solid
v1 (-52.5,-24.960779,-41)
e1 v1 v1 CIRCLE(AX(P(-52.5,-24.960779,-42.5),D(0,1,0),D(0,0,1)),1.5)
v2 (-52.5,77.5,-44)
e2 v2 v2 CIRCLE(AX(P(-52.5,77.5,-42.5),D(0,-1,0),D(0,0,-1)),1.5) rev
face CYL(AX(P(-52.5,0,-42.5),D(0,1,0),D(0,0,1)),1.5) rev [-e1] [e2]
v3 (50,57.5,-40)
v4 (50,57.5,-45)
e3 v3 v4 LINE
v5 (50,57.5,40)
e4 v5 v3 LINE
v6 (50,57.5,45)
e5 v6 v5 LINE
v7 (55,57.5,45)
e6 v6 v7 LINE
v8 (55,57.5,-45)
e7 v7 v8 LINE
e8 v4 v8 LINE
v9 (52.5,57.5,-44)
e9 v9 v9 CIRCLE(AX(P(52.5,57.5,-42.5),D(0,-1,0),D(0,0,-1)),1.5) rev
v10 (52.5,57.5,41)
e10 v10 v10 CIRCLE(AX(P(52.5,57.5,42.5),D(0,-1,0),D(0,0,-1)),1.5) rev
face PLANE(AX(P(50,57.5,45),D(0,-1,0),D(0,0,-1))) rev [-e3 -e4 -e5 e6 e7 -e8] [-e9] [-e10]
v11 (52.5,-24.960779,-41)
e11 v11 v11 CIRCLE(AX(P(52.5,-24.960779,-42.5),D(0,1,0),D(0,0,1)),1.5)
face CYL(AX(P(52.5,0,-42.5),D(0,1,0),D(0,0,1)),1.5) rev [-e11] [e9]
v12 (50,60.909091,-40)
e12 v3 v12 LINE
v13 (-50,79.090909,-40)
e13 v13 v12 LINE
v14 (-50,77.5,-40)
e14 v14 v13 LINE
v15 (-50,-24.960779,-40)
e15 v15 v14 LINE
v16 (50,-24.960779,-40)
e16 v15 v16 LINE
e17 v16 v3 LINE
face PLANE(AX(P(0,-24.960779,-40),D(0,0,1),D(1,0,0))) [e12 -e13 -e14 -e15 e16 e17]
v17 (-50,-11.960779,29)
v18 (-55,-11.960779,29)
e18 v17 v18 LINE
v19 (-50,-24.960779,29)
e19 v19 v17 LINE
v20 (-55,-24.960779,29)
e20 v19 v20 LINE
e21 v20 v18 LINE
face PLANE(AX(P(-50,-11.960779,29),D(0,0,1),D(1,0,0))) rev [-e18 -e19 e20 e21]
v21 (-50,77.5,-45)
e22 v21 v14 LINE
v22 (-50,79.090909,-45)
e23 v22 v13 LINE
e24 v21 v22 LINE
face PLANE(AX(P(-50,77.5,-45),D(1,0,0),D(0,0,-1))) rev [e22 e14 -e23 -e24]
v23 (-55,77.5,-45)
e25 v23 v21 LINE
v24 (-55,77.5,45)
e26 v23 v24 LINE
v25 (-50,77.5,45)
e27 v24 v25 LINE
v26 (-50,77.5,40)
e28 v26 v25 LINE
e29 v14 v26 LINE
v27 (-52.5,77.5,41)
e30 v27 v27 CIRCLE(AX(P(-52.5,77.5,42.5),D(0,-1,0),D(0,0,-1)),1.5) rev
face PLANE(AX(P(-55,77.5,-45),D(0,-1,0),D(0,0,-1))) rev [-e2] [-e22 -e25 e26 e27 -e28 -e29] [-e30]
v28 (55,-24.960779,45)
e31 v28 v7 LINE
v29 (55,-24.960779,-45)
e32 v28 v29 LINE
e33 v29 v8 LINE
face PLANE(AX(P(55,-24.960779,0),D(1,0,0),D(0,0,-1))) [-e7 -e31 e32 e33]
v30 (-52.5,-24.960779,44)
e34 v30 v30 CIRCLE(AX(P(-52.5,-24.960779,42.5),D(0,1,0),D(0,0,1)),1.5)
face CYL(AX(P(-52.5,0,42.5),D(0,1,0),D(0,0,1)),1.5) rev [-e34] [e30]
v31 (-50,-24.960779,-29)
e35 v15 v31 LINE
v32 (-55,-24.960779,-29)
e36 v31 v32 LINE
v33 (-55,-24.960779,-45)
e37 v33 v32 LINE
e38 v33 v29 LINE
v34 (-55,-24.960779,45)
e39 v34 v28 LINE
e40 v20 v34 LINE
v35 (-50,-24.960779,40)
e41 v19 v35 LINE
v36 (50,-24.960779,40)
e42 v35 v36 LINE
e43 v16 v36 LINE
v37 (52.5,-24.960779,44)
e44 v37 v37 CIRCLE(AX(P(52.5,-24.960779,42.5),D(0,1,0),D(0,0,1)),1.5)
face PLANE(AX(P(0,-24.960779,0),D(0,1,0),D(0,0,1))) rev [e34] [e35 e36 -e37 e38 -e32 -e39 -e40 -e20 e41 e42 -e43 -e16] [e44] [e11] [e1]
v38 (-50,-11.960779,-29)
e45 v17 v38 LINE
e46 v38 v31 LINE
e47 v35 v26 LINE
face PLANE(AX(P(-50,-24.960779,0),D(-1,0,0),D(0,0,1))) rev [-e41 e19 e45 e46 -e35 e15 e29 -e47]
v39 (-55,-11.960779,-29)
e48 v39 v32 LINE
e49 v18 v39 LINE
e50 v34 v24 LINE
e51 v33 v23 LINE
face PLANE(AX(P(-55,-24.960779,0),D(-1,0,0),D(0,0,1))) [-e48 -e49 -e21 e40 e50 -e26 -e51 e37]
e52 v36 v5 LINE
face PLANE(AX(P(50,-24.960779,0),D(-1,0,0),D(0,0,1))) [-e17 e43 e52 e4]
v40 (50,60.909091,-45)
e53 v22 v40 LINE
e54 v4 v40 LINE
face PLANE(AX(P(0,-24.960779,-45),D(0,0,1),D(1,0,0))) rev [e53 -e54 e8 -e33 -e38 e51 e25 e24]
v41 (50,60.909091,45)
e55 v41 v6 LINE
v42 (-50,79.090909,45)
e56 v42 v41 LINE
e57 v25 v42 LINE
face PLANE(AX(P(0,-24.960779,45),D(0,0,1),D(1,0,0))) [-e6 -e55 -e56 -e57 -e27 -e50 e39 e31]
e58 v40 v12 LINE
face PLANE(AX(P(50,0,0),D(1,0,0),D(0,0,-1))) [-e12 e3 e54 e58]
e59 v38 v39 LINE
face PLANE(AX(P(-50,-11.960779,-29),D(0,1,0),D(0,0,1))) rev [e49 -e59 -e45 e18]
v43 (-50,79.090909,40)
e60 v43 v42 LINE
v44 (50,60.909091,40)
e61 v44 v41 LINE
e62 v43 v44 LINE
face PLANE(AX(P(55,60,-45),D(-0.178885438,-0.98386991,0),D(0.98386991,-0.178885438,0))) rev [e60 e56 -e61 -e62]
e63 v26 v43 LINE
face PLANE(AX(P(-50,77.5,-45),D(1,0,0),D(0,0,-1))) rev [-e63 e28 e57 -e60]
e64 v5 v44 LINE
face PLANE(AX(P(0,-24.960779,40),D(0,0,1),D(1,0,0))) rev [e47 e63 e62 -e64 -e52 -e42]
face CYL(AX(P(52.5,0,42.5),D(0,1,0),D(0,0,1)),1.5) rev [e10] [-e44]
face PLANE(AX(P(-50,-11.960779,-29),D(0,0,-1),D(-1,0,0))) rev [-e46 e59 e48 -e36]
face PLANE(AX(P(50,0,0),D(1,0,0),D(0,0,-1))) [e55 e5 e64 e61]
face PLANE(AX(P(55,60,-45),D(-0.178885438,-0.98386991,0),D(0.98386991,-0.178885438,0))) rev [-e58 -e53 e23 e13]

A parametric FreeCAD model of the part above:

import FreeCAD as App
import Part
import Sketcher

V = App.Vector
Q = App.Units.Quantity


def add_polygon(sketch, points):
    """Adds a closed chain of lines whose ends are joined by coincident constraints."""
    first, n = sketch.GeometryCount, len(points)
    for a, b in zip(points, points[1:] + points[:1]):
        sketch.addGeometry(Part.LineSegment(App.Vector(*a, 0), App.Vector(*b, 0)), False)
    for i in range(n):
        sketch.addConstraint(Sketcher.Constraint("Coincident", first + i, 2, first + (i + 1) % n, 1))

doc = App.newDocument("Part")
params = doc.addObject("Spreadsheet::Sheet", "Params")
for row, (alias, value) in enumerate([
    ("sketch1_width", "110 mm"),
    ("sketch1_width2", "100 mm"),
    ("sketch1_height", "90 mm"),
    ("sketch1_height2", "80 mm"),
    ("pad1_length", "80 mm"),
    ("pad1_length2", "24.960779 mm"),
    ("sketch2_diameter", "3 mm"),
    ("pocket1_length", "80 mm"),
    ("sketch3_diameter", "3 mm"),
    ("pocket2_length", "80 mm"),
    ("sketch4_diameter", "3 mm"),
    ("pocket3_length", "80 mm"),
    ("sketch5_diameter", "3 mm"),
    ("pocket4_length", "80 mm"),
    ("sketch6_width", "110 mm"),
    ("sketch6_height", "20 mm"),
    ("pocket5_length", "90 mm"),
    ("sketch7_height", "90 mm"),
    ("sketch7_width", "2.5 mm"),
    ("pocket6_length", "5 mm"),
    ("sketch8_width", "5 mm"),
    ("pocket7_length", "90 mm"),
    ("sketch9_width", "5 mm"),
    ("sketch9_height", "2.5 mm"),
    ("pocket8_length", "90 mm"),
    ("sketch10_diameter", "3 mm"),
    ("pocket9_length", "105 mm"),
    ("sketch11_diameter", "3 mm"),
    ("pocket10_length", "105 mm"),
    ("sketch12_diameter", "3 mm"),
    ("pocket11_length", "105 mm"),
    ("sketch13_diameter", "3 mm"),
    ("pocket12_length", "105 mm"),
    ("sketch14_width", "13 mm"),
    ("sketch14_height", "58 mm"),
    ("pocket13_length", "5 mm"),
], start=1):
    params.set(f"A{row}", alias)
    params.set(f"B{row}", "=" + value)
    params.setAlias(f"B{row}", alias)

body = doc.addObject("PartDesign::Body", "Body")

sketch1 = doc.addObject("Sketcher::SketchObject", "Sketch")
body.addObject(sketch1)
sketch1.AttachmentSupport = (doc.XZ_Plane, [""])
sketch1.MapMode = "FlatFace"
add_polygon(sketch1, [(55, 45), (55, -45), (-55, -45), (-55, 45)])
add_polygon(sketch1, [(-50, -40), (50, -40), (50, 40), (-50, 40)])
sketch1.addConstraint([
    Sketcher.Constraint("Vertical", 0),
    Sketcher.Constraint("Horizontal", 1),
    Sketcher.Constraint("Vertical", 2),
    Sketcher.Constraint("Horizontal", 3),
    Sketcher.Constraint("Horizontal", 4),
    Sketcher.Constraint("Vertical", 5),
    Sketcher.Constraint("Horizontal", 6),
    Sketcher.Constraint("Vertical", 7),
    Sketcher.Constraint("Symmetric", 0, 2, 2, 2, -1, 1),
    Sketcher.Constraint("Symmetric", 4, 2, 6, 2, -1, 1),
    Sketcher.Constraint("DistanceX", 1, 2, 1, 1, Q("110 mm")),
    Sketcher.Constraint("DistanceX", 4, 1, 4, 2, Q("100 mm")),
    Sketcher.Constraint("DistanceY", 0, 2, 0, 1, Q("90 mm")),
    Sketcher.Constraint("DistanceY", 5, 1, 5, 2, Q("80 mm")),
])
sketch1.setExpression("Constraints[18]", "Params.sketch1_width")
sketch1.setExpression("Constraints[19]", "Params.sketch1_width2")
sketch1.setExpression("Constraints[20]", "Params.sketch1_height")
sketch1.setExpression("Constraints[21]", "Params.sketch1_height2")
pad1 = doc.addObject("PartDesign::Pad", "Pad")
body.addObject(pad1)
pad1.Profile = sketch1
pad1.Type = "TwoLengths"
pad1.setExpression("Length", "Params.pad1_length")
pad1.setExpression("Length2", "Params.pad1_length2")
pad1.Reversed = True

sketch2 = doc.addObject("Sketcher::SketchObject", "Sketch001")
body.addObject(sketch2)
sketch2.AttachmentSupport = (doc.XZ_Plane, [""])
sketch2.MapMode = "FlatFace"
sketch2.AttachmentOffset = App.Placement(V(0, 0, -80), App.Rotation())
sketch2.addGeometry(Part.Circle(V(-52.5, -42.5, 0), V(0, 0, 1), 1.5), False)
sketch2.addConstraint([
    Sketcher.Constraint("Diameter", 0, Q("3 mm")),
    Sketcher.Constraint("DistanceX", 0, 3, -1, 1, Q("52.5 mm")),
    Sketcher.Constraint("DistanceY", 0, 3, -1, 1, Q("42.5 mm")),
])
sketch2.setExpression("Constraints[0]", "Params.sketch2_diameter")
pocket1 = doc.addObject("PartDesign::Pocket", "Pocket")
body.addObject(pocket1)
pocket1.Profile = sketch2
pocket1.setExpression("Length", "Params.pocket1_length")
pocket1.Reversed = True

sketch3 = doc.addObject("Sketcher::SketchObject", "Sketch002")
body.addObject(sketch3)
sketch3.AttachmentSupport = (doc.XZ_Plane, [""])
sketch3.MapMode = "FlatFace"
sketch3.AttachmentOffset = App.Placement(V(0, 0, -80), App.Rotation())
sketch3.addGeometry(Part.Circle(V(52.5, -42.5, 0), V(0, 0, 1), 1.5), False)
sketch3.addConstraint([
    Sketcher.Constraint("Diameter", 0, Q("3 mm")),
    Sketcher.Constraint("DistanceX", -1, 1, 0, 3, Q("52.5 mm")),
    Sketcher.Constraint("DistanceY", 0, 3, -1, 1, Q("42.5 mm")),
])
sketch3.setExpression("Constraints[0]", "Params.sketch3_diameter")
pocket2 = doc.addObject("PartDesign::Pocket", "Pocket001")
body.addObject(pocket2)
pocket2.Profile = sketch3
pocket2.setExpression("Length", "Params.pocket2_length")
pocket2.Reversed = True

sketch4 = doc.addObject("Sketcher::SketchObject", "Sketch003")
body.addObject(sketch4)
sketch4.AttachmentSupport = (doc.XZ_Plane, [""])
sketch4.MapMode = "FlatFace"
sketch4.AttachmentOffset = App.Placement(V(0, 0, -80), App.Rotation())
sketch4.addGeometry(Part.Circle(V(-52.5, 42.5, 0), V(0, 0, 1), 1.5), False)
sketch4.addConstraint([
    Sketcher.Constraint("Diameter", 0, Q("3 mm")),
    Sketcher.Constraint("DistanceX", 0, 3, -1, 1, Q("52.5 mm")),
    Sketcher.Constraint("DistanceY", -1, 1, 0, 3, Q("42.5 mm")),
])
sketch4.setExpression("Constraints[0]", "Params.sketch4_diameter")
pocket3 = doc.addObject("PartDesign::Pocket", "Pocket002")
body.addObject(pocket3)
pocket3.Profile = sketch4
pocket3.setExpression("Length", "Params.pocket3_length")
pocket3.Reversed = True

sketch5 = doc.addObject("Sketcher::SketchObject", "Sketch004")
body.addObject(sketch5)
sketch5.AttachmentSupport = (doc.XZ_Plane, [""])
sketch5.MapMode = "FlatFace"
sketch5.AttachmentOffset = App.Placement(V(0, 0, -80), App.Rotation())
sketch5.addGeometry(Part.Circle(V(52.5, 42.5, 0), V(0, 0, 1), 1.5), False)
sketch5.addConstraint([
    Sketcher.Constraint("Diameter", 0, Q("3 mm")),
    Sketcher.Constraint("DistanceX", -1, 1, 0, 3, Q("52.5 mm")),
    Sketcher.Constraint("DistanceY", -1, 1, 0, 3, Q("42.5 mm")),
])
sketch5.setExpression("Constraints[0]", "Params.sketch5_diameter")
pocket4 = doc.addObject("PartDesign::Pocket", "Pocket003")
body.addObject(pocket4)
pocket4.Profile = sketch5
pocket4.setExpression("Length", "Params.pocket4_length")
pocket4.Reversed = True

sketch6 = doc.addObject("Sketcher::SketchObject", "Sketch005")
body.addObject(sketch6)
sketch6.AttachmentSupport = (doc.XY_Plane, [""])
sketch6.MapMode = "FlatFace"
sketch6.AttachmentOffset = App.Placement(V(0, 0, 45), App.Rotation())
add_polygon(sketch6, [(55, 80), (-55, 80), (55, 60)])
sketch6.addConstraint([
    Sketcher.Constraint("Horizontal", 0),
    Sketcher.Constraint("Vertical", 2),
    Sketcher.Constraint("DistanceX", 0, 2, 0, 1, Q("110 mm")),
    Sketcher.Constraint("DistanceY", 2, 1, 2, 2, Q("20 mm")),
    Sketcher.Constraint("DistanceX", 0, 2, -1, 1, Q("55 mm")),
    Sketcher.Constraint("DistanceY", -1, 1, 0, 2, Q("80 mm")),
])
sketch6.setExpression("Constraints[5]", "Params.sketch6_width")
sketch6.setExpression("Constraints[6]", "Params.sketch6_height")
pocket5 = doc.addObject("PartDesign::Pocket", "Pocket004")
body.addObject(pocket5)
pocket5.Profile = sketch6
pocket5.setExpression("Length", "Params.pocket5_length")

sketch7 = doc.addObject("Sketcher::SketchObject", "Sketch006")
body.addObject(sketch7)
sketch7.AttachmentSupport = (doc.YZ_Plane, [""])
sketch7.MapMode = "FlatFace"
sketch7.AttachmentOffset = App.Placement(V(0, 0, 55), App.Rotation())
add_polygon(sketch7, [(60, 45), (57.5, 45), (57.5, -45), (60, -45)])
sketch7.addConstraint([
    Sketcher.Constraint("Horizontal", 0),
    Sketcher.Constraint("Vertical", 1),
    Sketcher.Constraint("Horizontal", 2),
    Sketcher.Constraint("Vertical", 3),
    Sketcher.Constraint("DistanceY", 1, 2, 1, 1, Q("90 mm")),
    Sketcher.Constraint("DistanceX", 0, 2, 0, 1, Q("2.5 mm")),
    Sketcher.Constraint("DistanceY", -1, 1, 0, 2, Q("45 mm")),
    Sketcher.Constraint("DistanceX", -1, 1, 2, 2, Q("60 mm")),
])
sketch7.setExpression("Constraints[8]", "Params.sketch7_height")
sketch7.setExpression("Constraints[9]", "Params.sketch7_width")
pocket6 = doc.addObject("PartDesign::Pocket", "Pocket005")
body.addObject(pocket6)
pocket6.Profile = sketch7
pocket6.setExpression("Length", "Params.pocket6_length")

sketch8 = doc.addObject("Sketcher::SketchObject", "Sketch007")
body.addObject(sketch8)
sketch8.AttachmentSupport = (doc.XY_Plane, [""])
sketch8.MapMode = "FlatFace"
sketch8.AttachmentOffset = App.Placement(V(0, 0, 45), App.Rotation())
add_polygon(sketch8, [(50, 60), (55, 60), (50, 60.9)])
sketch8.addConstraint([
    Sketcher.Constraint("Horizontal", 0),
    Sketcher.Constraint("Vertical", 2),
    Sketcher.Constraint("DistanceX", 0, 1, 0, 2, Q("5 mm")),
    Sketcher.Constraint("DistanceX", -1, 1, 0, 2, Q("55 mm")),
    Sketcher.Constraint("DistanceY", -1, 1, 0, 2, Q("60 mm")),
    Sketcher.Constraint("DistanceY", 2, 2, 2, 1, Q("0.909091 mm")),
])
sketch8.setExpression("Constraints[5]", "Params.sketch8_width")
pocket7 = doc.addObject("PartDesign::Pocket", "Pocket006")
body.addObject(pocket7)
pocket7.Profile = sketch8
pocket7.setExpression("Length", "Params.pocket7_length")

sketch9 = doc.addObject("Sketcher::SketchObject", "Sketch008")
body.addObject(sketch9)
sketch9.AttachmentSupport = (doc.XY_Plane, [""])
sketch9.MapMode = "FlatFace"
sketch9.AttachmentOffset = App.Placement(V(0, 0, 45), App.Rotation())
add_polygon(sketch9, [(-55, 80), (-55, 77.5), (-50, 77.5), (-50, 79.1)])
sketch9.addConstraint([
    Sketcher.Constraint("Vertical", 0),
    Sketcher.Constraint("Horizontal", 1),
    Sketcher.Constraint("Vertical", 2),
    Sketcher.Constraint("DistanceX", 1, 1, 1, 2, Q("5 mm")),
    Sketcher.Constraint("DistanceY", 0, 2, 0, 1, Q("2.5 mm")),
    Sketcher.Constraint("DistanceX", 0, 2, -1, 1, Q("55 mm")),
    Sketcher.Constraint("DistanceY", -1, 1, 3, 2, Q("80 mm")),
    Sketcher.Constraint("DistanceY", 2, 1, 2, 2, Q("1.590909 mm")),
])
sketch9.setExpression("Constraints[7]", "Params.sketch9_width")
sketch9.setExpression("Constraints[8]", "Params.sketch9_height")
pocket8 = doc.addObject("PartDesign::Pocket", "Pocket007")
body.addObject(pocket8)
pocket8.Profile = sketch9
pocket8.setExpression("Length", "Params.pocket8_length")

sketch10 = doc.addObject("Sketcher::SketchObject", "Sketch009")
body.addObject(sketch10)
sketch10.AttachmentSupport = (doc.XZ_Plane, [""])
sketch10.MapMode = "FlatFace"
sketch10.AttachmentOffset = App.Placement(V(0, 0, -80), App.Rotation())
sketch10.addGeometry(Part.Circle(V(-52.5, 42.5, 0), V(0, 0, 1), 1.5), False)
sketch10.addConstraint([
    Sketcher.Constraint("Diameter", 0, Q("3 mm")),
    Sketcher.Constraint("DistanceX", 0, 3, -1, 1, Q("52.5 mm")),
    Sketcher.Constraint("DistanceY", -1, 1, 0, 3, Q("42.5 mm")),
])
sketch10.setExpression("Constraints[0]", "Params.sketch10_diameter")
pocket9 = doc.addObject("PartDesign::Pocket", "Pocket008")
body.addObject(pocket9)
pocket9.Profile = sketch10
pocket9.setExpression("Length", "Params.pocket9_length")
pocket9.Reversed = True

sketch11 = doc.addObject("Sketcher::SketchObject", "Sketch010")
body.addObject(sketch11)
sketch11.AttachmentSupport = (doc.XZ_Plane, [""])
sketch11.MapMode = "FlatFace"
sketch11.AttachmentOffset = App.Placement(V(0, 0, -80), App.Rotation())
sketch11.addGeometry(Part.Circle(V(52.5, 42.5, 0), V(0, 0, 1), 1.5), False)
sketch11.addConstraint([
    Sketcher.Constraint("Diameter", 0, Q("3 mm")),
    Sketcher.Constraint("DistanceX", -1, 1, 0, 3, Q("52.5 mm")),
    Sketcher.Constraint("DistanceY", -1, 1, 0, 3, Q("42.5 mm")),
])
sketch11.setExpression("Constraints[0]", "Params.sketch11_diameter")
pocket10 = doc.addObject("PartDesign::Pocket", "Pocket009")
body.addObject(pocket10)
pocket10.Profile = sketch11
pocket10.setExpression("Length", "Params.pocket10_length")
pocket10.Reversed = True

sketch12 = doc.addObject("Sketcher::SketchObject", "Sketch011")
body.addObject(sketch12)
sketch12.AttachmentSupport = (doc.XZ_Plane, [""])
sketch12.MapMode = "FlatFace"
sketch12.AttachmentOffset = App.Placement(V(0, 0, -80), App.Rotation())
sketch12.addGeometry(Part.Circle(V(52.5, -42.5, 0), V(0, 0, 1), 1.5), False)
sketch12.addConstraint([
    Sketcher.Constraint("Diameter", 0, Q("3 mm")),
    Sketcher.Constraint("DistanceX", -1, 1, 0, 3, Q("52.5 mm")),
    Sketcher.Constraint("DistanceY", 0, 3, -1, 1, Q("42.5 mm")),
])
sketch12.setExpression("Constraints[0]", "Params.sketch12_diameter")
pocket11 = doc.addObject("PartDesign::Pocket", "Pocket010")
body.addObject(pocket11)
pocket11.Profile = sketch12
pocket11.setExpression("Length", "Params.pocket11_length")
pocket11.Reversed = True

sketch13 = doc.addObject("Sketcher::SketchObject", "Sketch012")
body.addObject(sketch13)
sketch13.AttachmentSupport = (doc.XZ_Plane, [""])
sketch13.MapMode = "FlatFace"
sketch13.AttachmentOffset = App.Placement(V(0, 0, -80), App.Rotation())
sketch13.addGeometry(Part.Circle(V(-52.5, -42.5, 0), V(0, 0, 1), 1.5), False)
sketch13.addConstraint([
    Sketcher.Constraint("Diameter", 0, Q("3 mm")),
    Sketcher.Constraint("DistanceX", 0, 3, -1, 1, Q("52.5 mm")),
    Sketcher.Constraint("DistanceY", 0, 3, -1, 1, Q("42.5 mm")),
])
sketch13.setExpression("Constraints[0]", "Params.sketch13_diameter")
pocket12 = doc.addObject("PartDesign::Pocket", "Pocket011")
body.addObject(pocket12)
pocket12.Profile = sketch13
pocket12.setExpression("Length", "Params.pocket12_length")
pocket12.Reversed = True

sketch14 = doc.addObject("Sketcher::SketchObject", "Sketch013")
body.addObject(sketch14)
sketch14.AttachmentSupport = (doc.YZ_Plane, [""])
sketch14.MapMode = "FlatFace"
sketch14.AttachmentOffset = App.Placement(V(0, 0, -55), App.Rotation())
add_polygon(sketch14, [(-12, -29), (-25, -29), (-25, 29), (-12, 29)])
sketch14.addConstraint([
    Sketcher.Constraint("Horizontal", 0),
    Sketcher.Constraint("Vertical", 1),
    Sketcher.Constraint("Horizontal", 2),
    Sketcher.Constraint("Vertical", 3),
    Sketcher.Constraint("DistanceX", 0, 2, 0, 1, Q("13 mm")),
    Sketcher.Constraint("DistanceY", 1, 1, 1, 2, Q("58 mm")),
    Sketcher.Constraint("DistanceY", 0, 2, -1, 1, Q("29 mm")),
    Sketcher.Constraint("DistanceX", 0, 2, -1, 1, Q("24.960779 mm")),
])
sketch14.setExpression("Constraints[8]", "Params.sketch14_width")
sketch14.setExpression("Constraints[9]", "Params.sketch14_height")
pocket13 = doc.addObject("PartDesign::Pocket", "Pocket012")
body.addObject(pocket13)
pocket13.Profile = sketch14
pocket13.setExpression("Length", "Params.pocket13_length")
pocket13.Reversed = True

doc.recompute()
